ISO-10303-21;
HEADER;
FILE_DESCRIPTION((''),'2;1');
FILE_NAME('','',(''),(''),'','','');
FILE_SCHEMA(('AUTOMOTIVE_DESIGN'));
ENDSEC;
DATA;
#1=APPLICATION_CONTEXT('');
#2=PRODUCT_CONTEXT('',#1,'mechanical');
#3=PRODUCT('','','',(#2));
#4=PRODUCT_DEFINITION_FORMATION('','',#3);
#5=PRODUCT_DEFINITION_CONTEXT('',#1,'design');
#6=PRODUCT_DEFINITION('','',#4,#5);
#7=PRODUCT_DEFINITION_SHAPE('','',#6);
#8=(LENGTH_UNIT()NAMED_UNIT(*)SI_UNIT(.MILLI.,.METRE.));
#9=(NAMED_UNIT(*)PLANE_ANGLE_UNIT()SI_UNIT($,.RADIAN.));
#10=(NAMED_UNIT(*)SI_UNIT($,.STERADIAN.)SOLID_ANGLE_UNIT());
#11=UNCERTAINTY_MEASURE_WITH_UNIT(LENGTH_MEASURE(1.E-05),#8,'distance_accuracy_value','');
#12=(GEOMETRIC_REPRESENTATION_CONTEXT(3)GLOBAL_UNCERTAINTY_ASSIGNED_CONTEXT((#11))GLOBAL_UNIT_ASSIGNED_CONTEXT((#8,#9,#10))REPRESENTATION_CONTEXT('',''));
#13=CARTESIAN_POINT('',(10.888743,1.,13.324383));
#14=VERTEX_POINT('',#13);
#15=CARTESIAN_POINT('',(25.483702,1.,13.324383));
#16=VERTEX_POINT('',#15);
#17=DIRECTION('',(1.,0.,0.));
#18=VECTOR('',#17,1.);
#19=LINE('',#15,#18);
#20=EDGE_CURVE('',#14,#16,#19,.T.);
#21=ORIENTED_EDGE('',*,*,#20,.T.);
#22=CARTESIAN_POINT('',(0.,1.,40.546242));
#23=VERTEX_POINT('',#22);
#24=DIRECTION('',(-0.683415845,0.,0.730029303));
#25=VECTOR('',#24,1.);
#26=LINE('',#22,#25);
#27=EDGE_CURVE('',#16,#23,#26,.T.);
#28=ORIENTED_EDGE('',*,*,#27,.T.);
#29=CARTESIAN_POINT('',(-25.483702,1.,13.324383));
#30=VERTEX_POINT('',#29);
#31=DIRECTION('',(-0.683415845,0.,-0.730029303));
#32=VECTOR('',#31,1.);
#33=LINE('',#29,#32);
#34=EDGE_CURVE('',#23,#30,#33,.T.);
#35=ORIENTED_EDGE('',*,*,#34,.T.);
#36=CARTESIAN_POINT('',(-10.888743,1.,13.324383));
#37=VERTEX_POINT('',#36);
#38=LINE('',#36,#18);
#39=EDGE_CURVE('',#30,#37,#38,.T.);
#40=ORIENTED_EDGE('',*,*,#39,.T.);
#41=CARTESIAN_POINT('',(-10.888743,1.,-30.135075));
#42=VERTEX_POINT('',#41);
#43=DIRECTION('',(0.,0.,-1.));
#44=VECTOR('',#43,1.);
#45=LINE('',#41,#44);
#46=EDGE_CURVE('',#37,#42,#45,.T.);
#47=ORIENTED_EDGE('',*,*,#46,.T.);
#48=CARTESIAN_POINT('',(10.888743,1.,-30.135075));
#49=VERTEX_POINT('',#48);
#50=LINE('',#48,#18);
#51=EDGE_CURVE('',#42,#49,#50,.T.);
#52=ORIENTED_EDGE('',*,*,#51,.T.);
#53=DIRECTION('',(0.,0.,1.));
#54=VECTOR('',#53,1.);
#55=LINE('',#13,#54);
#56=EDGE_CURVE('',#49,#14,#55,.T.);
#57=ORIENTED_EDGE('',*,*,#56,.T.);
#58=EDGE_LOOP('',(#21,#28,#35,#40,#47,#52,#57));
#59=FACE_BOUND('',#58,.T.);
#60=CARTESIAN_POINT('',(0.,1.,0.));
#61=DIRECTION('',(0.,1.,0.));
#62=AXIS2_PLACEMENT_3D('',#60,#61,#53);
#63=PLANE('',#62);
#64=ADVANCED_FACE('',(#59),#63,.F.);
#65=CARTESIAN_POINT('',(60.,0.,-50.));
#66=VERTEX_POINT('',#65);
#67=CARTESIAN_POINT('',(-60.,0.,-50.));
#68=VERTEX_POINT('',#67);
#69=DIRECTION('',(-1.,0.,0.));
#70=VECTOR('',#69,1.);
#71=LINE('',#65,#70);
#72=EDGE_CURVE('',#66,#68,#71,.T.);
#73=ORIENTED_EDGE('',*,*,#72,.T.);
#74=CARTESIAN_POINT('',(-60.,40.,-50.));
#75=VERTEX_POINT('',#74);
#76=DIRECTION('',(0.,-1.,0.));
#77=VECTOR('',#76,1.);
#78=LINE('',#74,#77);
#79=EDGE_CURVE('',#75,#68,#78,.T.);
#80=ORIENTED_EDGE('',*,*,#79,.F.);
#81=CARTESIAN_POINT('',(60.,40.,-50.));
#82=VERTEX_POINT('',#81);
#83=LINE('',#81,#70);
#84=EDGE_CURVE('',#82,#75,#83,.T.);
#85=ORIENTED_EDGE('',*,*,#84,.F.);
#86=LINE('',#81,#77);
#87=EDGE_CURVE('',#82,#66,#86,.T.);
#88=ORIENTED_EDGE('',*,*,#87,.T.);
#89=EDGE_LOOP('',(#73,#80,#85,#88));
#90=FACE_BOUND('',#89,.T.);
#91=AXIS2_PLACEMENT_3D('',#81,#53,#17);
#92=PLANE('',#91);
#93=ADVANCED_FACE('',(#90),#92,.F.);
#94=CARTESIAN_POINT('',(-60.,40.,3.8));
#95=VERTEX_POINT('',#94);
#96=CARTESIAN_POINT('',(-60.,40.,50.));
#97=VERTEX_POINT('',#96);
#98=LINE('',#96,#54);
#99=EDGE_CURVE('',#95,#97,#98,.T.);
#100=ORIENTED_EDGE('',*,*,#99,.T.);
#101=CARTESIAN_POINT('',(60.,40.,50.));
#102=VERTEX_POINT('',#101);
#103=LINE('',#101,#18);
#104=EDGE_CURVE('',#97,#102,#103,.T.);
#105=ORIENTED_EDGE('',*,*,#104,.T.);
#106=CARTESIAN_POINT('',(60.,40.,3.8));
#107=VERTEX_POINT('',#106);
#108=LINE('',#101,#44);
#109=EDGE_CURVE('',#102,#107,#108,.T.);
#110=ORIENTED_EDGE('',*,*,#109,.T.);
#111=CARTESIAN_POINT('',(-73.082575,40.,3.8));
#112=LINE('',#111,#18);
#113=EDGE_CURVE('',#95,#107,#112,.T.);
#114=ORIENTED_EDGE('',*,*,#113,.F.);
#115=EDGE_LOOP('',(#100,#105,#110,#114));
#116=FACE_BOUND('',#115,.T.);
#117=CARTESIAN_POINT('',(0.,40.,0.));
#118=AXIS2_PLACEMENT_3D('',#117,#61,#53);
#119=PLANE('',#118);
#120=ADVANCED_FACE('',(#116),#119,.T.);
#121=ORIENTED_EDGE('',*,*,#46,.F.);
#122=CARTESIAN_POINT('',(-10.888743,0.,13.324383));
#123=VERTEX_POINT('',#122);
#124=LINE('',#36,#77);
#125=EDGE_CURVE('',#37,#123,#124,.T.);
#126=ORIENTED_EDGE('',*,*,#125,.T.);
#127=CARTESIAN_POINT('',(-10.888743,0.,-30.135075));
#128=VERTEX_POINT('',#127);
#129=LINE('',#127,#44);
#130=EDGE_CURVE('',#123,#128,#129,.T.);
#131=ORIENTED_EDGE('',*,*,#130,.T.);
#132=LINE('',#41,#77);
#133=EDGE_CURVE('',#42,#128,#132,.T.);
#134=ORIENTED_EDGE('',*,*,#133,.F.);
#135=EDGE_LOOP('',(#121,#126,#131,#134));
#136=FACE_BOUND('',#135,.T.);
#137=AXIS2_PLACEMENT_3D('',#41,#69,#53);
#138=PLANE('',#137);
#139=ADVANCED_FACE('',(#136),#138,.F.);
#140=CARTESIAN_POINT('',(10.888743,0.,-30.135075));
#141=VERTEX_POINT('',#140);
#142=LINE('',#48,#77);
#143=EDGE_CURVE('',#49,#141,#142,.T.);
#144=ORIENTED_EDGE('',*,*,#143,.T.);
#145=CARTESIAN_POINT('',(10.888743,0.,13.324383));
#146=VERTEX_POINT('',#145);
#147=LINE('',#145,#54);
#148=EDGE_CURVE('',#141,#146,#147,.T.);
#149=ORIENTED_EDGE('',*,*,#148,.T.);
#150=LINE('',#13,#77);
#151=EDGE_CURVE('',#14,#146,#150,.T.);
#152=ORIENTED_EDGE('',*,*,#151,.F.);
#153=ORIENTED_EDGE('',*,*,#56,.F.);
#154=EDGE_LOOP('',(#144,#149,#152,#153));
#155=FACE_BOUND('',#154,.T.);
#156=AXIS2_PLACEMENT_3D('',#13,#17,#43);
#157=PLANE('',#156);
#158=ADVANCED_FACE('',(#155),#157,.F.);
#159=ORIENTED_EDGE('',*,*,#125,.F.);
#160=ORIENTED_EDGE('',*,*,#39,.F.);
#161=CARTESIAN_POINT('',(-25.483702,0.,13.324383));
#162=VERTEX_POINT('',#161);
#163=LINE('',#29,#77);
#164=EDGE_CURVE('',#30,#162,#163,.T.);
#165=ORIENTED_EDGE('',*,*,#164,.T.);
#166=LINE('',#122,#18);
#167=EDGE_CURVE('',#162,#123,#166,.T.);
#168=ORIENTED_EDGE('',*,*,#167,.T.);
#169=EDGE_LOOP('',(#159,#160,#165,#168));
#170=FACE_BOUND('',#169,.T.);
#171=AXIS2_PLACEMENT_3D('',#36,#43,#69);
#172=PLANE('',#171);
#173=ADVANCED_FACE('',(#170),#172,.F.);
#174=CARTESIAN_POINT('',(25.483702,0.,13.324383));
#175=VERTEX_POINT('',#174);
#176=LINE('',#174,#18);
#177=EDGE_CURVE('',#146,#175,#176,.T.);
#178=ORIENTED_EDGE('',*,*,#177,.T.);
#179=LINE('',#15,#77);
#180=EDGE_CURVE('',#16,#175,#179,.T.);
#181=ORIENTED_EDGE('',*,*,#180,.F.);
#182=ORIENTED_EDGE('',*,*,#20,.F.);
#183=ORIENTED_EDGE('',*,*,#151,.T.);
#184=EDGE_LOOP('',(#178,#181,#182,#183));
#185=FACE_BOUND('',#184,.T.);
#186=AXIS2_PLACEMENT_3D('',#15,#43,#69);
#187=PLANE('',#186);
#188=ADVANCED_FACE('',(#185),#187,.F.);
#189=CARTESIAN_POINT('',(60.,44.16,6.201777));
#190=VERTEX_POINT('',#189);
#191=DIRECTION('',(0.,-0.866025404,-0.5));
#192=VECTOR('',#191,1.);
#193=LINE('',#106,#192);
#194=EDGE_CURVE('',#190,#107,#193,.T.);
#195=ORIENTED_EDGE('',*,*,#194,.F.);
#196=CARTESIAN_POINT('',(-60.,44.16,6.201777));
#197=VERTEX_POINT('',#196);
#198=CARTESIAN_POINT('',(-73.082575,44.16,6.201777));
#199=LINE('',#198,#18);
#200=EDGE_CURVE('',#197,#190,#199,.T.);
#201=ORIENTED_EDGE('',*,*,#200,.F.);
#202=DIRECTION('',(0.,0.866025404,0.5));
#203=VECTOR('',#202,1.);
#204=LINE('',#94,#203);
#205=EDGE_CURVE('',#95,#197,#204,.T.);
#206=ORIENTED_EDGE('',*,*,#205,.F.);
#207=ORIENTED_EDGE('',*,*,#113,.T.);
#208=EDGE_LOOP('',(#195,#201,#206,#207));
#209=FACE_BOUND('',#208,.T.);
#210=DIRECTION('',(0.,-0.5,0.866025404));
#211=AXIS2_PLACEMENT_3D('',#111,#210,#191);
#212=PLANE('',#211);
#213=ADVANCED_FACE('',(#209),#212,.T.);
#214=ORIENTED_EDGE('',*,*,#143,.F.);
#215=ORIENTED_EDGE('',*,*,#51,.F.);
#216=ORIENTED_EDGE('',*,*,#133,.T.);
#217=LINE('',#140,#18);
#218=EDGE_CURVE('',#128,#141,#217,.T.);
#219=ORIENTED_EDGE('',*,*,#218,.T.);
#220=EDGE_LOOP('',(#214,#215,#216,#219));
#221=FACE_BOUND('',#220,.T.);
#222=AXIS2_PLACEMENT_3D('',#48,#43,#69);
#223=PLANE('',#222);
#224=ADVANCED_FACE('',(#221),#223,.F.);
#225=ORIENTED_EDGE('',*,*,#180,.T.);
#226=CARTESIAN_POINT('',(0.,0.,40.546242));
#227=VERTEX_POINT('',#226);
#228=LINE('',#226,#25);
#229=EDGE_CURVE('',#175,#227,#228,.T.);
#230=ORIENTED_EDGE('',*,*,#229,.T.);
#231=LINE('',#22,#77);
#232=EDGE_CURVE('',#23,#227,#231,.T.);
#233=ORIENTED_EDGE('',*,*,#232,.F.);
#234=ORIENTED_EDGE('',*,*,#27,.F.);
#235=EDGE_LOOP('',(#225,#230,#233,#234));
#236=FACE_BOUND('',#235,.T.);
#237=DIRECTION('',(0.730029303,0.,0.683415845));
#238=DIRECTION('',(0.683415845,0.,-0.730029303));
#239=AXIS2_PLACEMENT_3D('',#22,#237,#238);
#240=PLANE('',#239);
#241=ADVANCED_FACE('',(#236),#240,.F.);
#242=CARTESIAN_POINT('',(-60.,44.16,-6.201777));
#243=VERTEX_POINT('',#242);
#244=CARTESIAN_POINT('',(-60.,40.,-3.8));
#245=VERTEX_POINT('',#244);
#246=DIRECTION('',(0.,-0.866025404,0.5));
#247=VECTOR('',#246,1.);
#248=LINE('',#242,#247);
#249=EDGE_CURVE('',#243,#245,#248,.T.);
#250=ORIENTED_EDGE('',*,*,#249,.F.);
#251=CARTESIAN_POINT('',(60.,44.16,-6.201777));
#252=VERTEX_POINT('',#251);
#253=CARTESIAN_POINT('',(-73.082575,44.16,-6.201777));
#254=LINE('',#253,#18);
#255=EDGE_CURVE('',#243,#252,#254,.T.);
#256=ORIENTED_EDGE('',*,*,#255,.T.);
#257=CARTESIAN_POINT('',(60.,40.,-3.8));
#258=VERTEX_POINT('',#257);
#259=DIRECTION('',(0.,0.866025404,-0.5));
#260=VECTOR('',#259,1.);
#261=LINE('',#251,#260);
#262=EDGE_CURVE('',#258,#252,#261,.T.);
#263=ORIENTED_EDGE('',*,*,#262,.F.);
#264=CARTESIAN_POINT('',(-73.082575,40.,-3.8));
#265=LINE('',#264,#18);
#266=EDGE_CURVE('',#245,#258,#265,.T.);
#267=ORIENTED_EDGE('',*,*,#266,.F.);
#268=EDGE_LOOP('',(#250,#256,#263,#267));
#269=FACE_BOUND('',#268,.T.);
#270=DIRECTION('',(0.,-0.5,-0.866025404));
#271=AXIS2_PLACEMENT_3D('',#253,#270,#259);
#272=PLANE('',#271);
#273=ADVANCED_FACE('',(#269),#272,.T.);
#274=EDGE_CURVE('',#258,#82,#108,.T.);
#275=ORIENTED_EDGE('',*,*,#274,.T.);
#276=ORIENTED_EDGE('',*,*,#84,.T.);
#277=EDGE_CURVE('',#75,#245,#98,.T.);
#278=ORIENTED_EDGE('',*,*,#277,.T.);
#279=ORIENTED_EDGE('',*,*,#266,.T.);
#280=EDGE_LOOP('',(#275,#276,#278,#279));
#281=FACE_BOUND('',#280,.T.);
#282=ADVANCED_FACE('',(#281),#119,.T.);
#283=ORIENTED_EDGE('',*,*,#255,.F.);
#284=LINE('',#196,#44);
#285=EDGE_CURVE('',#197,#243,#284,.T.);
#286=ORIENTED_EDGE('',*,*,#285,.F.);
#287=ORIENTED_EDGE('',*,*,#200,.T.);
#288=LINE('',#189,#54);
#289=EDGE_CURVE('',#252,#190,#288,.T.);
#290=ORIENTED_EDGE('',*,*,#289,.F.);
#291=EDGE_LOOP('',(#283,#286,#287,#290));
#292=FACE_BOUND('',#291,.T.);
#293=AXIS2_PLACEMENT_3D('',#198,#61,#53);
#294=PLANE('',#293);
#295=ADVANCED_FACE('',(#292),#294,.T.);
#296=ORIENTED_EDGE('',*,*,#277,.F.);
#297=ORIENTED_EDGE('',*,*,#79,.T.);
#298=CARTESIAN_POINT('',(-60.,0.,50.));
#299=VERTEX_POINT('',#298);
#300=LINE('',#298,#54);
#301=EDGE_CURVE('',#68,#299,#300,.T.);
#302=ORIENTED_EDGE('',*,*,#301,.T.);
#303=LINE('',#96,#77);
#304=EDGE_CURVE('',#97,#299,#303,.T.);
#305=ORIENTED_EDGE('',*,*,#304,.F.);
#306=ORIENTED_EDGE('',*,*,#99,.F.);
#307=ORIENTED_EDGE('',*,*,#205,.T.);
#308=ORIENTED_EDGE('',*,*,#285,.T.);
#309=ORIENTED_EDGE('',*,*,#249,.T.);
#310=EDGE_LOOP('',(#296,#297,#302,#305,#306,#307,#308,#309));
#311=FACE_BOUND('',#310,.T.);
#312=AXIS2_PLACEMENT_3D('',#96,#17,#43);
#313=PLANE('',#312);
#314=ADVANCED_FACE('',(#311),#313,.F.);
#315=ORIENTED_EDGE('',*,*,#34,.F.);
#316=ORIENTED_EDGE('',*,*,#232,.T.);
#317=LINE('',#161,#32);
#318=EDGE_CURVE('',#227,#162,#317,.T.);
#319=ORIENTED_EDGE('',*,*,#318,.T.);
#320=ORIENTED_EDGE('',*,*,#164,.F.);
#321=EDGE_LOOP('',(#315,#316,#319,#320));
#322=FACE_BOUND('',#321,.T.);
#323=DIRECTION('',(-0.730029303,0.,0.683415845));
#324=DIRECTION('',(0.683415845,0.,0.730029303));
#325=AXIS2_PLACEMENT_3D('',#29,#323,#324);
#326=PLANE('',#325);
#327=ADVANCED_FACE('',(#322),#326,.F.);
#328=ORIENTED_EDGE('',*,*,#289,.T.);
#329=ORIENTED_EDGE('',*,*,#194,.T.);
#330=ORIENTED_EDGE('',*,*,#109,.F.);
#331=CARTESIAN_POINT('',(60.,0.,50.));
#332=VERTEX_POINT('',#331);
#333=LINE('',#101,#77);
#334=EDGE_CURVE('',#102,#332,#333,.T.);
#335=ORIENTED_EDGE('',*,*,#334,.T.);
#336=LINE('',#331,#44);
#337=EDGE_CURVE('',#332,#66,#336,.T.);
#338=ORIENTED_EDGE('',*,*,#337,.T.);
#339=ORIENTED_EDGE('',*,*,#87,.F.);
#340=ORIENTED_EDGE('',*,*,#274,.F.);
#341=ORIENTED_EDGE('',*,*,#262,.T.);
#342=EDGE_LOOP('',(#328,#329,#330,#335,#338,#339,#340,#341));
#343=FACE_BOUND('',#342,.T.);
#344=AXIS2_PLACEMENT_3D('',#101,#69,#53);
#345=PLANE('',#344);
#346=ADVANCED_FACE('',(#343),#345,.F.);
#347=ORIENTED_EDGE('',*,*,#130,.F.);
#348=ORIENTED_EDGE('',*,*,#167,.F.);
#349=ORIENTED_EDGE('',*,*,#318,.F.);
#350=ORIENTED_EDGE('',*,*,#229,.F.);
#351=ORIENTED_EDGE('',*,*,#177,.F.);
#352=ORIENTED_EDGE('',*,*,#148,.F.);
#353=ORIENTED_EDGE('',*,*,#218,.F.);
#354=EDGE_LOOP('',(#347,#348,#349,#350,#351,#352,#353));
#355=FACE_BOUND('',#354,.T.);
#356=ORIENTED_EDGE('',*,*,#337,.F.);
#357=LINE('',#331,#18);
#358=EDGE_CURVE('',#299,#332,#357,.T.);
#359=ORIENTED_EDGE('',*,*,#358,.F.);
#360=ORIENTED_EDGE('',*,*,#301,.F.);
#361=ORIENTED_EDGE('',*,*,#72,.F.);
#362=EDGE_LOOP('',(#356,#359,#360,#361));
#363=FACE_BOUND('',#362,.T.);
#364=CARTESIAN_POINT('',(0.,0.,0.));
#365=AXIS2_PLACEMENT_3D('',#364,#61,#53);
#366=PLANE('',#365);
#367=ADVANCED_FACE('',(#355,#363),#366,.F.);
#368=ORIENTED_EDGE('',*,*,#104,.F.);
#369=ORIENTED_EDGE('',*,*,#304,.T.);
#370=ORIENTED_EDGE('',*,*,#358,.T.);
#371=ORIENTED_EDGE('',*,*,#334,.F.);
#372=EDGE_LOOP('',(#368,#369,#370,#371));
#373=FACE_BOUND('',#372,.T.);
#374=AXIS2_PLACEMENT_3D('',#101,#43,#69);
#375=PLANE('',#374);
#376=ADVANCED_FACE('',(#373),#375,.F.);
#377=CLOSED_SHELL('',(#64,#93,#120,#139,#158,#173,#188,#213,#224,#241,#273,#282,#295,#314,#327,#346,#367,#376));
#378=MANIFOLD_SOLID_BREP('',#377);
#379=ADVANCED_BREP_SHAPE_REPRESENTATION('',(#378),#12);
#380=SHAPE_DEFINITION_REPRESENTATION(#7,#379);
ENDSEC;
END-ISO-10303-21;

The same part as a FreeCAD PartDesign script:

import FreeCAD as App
import Part
import Sketcher
Q = App.Units.Quantity

doc = App.newDocument("Part")
body = doc.addObject("PartDesign::Body", "Body")

# Sketch on XZ plane
sketch1 = body.newObject("Sketcher::SketchObject", "Sketch")
sketch1.AttachmentSupport = (doc.getObject("XZ_Plane"), [""])
sketch1.MapMode = "FlatFace"
sketch1.addGeometry(Part.LineSegment(App.Vector(-60, -50, 0), App.Vector(-60, 50, 0)), False)
sketch1.addGeometry(Part.LineSegment(App.Vector(-60, 50, 0), App.Vector(60, 50, 0)), False)
sketch1.addGeometry(Part.LineSegment(App.Vector(60, 50, 0), App.Vector(60, -50, 0)), False)
sketch1.addGeometry(Part.LineSegment(App.Vector(60, -50, 0), App.Vector(-60, -50, 0)), False)
sketch1.addConstraint(Sketcher.Constraint("Coincident", 0, 2, 1, 1))
sketch1.addConstraint(Sketcher.Constraint("Coincident", 1, 2, 2, 1))
sketch1.addConstraint(Sketcher.Constraint("Coincident", 2, 2, 3, 1))
sketch1.addConstraint(Sketcher.Constraint("Coincident", 3, 2, 0, 1))
sketch1.addConstraint(Sketcher.Constraint("Vertical", 0))
sketch1.addConstraint(Sketcher.Constraint("Horizontal", 1))
sketch1.addConstraint(Sketcher.Constraint("Vertical", 2))
sketch1.addConstraint(Sketcher.Constraint("Horizontal", 3))
sketch1.addConstraint(Sketcher.Constraint("Symmetric", 0, 2, 2, 2, -1, 1))
sketch1.addConstraint(Sketcher.Constraint("DistanceX", 1, 1, 1, 2, 120.0))
sketch1.addConstraint(Sketcher.Constraint("DistanceY", 0, 1, 0, 2, 100.0))
pad1 = body.newObject("PartDesign::Pad", "Pad")
pad1.Profile = sketch1
pad1.Length = 40
pad1.Reversed = True

# Sketch on YZ plane
sketch2 = body.newObject("Sketcher::SketchObject", "Sketch001")
sketch2.AttachmentSupport = (doc.getObject("YZ_Plane"), [""])
sketch2.MapMode = "FlatFace"
sketch2.AttachmentOffset = App.Placement(App.Vector(0, 0, 60), App.Rotation())
sketch2.addGeometry(Part.LineSegment(App.Vector(44.2, 6.2, 0), App.Vector(40, 3.8, 0)), False)
sketch2.addGeometry(Part.LineSegment(App.Vector(40, 3.8, 0), App.Vector(40, -3.8, 0)), False)
sketch2.addGeometry(Part.LineSegment(App.Vector(40, -3.8, 0), App.Vector(44.2, -6.2, 0)), False)
sketch2.addGeometry(Part.LineSegment(App.Vector(44.2, -6.2, 0), App.Vector(44.2, 6.2, 0)), False)
sketch2.addConstraint(Sketcher.Constraint("Coincident", 0, 2, 1, 1))
sketch2.addConstraint(Sketcher.Constraint("Coincident", 1, 2, 2, 1))
sketch2.addConstraint(Sketcher.Constraint("Coincident", 2, 2, 3, 1))
sketch2.addConstraint(Sketcher.Constraint("Coincident", 3, 2, 0, 1))
sketch2.addConstraint(Sketcher.Constraint("Vertical", 1))
sketch2.addConstraint(Sketcher.Constraint("Vertical", 3))
sketch2.addConstraint(Sketcher.Constraint("Equal", 0, 2))
sketch2.addConstraint(Sketcher.Constraint("Angle", 0, Q("-150 deg")))
sketch2.addConstraint(Sketcher.Constraint("DistanceY", 1, 2, 1, 1, 7.6))
sketch2.addConstraint(Sketcher.Constraint("DistanceX", -1, 1, 0, 2, 40.0))
sketch2.addConstraint(Sketcher.Constraint("DistanceY", -1, 1, 0, 2, 3.8))
sketch2.addConstraint(Sketcher.Constraint("DistanceX", -1, 1, 2, 2, 44.16))
pad2 = body.newObject("PartDesign::Pad", "Pad001")
pad2.Profile = sketch2
pad2.Length = 120
pad2.Reversed = True

# Sketch on XZ plane
sketch3 = body.newObject("Sketcher::SketchObject", "Sketch002")
sketch3.AttachmentSupport = (doc.getObject("XZ_Plane"), [""])
sketch3.MapMode = "FlatFace"
sketch3.addGeometry(Part.LineSegment(App.Vector(-11, 13, 0), App.Vector(-11, -30, 0)), False)
sketch3.addGeometry(Part.LineSegment(App.Vector(-11, -30, 0), App.Vector(11, -30, 0)), False)
sketch3.addGeometry(Part.LineSegment(App.Vector(11, -30, 0), App.Vector(11, 13, 0)), False)
sketch3.addGeometry(Part.LineSegment(App.Vector(11, 13, 0), App.Vector(25, 13, 0)), False)
sketch3.addGeometry(Part.LineSegment(App.Vector(25, 13, 0), App.Vector(0, 41, 0)), False)
sketch3.addGeometry(Part.LineSegment(App.Vector(0, 41, 0), App.Vector(-25, 13, 0)), False)
sketch3.addGeometry(Part.LineSegment(App.Vector(-25, 13, 0), App.Vector(-11, 13, 0)), False)
sketch3.addConstraint(Sketcher.Constraint("Coincident", 0, 2, 1, 1))
sketch3.addConstraint(Sketcher.Constraint("Coincident", 1, 2, 2, 1))
sketch3.addConstraint(Sketcher.Constraint("Coincident", 2, 2, 3, 1))
sketch3.addConstraint(Sketcher.Constraint("Coincident", 3, 2, 4, 1))
sketch3.addConstraint(Sketcher.Constraint("Coincident", 4, 2, 5, 1))
sketch3.addConstraint(Sketcher.Constraint("Coincident", 5, 2, 6, 1))
sketch3.addConstraint(Sketcher.Constraint("Coincident", 6, 2, 0, 1))
sketch3.addConstraint(Sketcher.Constraint("Vertical", 0))
sketch3.addConstraint(Sketcher.Constraint("Horizontal", 1))
sketch3.addConstraint(Sketcher.Constraint("Vertical", 2))
sketch3.addConstraint(Sketcher.Constraint("Horizontal", 3))
sketch3.addConstraint(Sketcher.Constraint("Horizontal", 6))
sketch3.addConstraint(Sketcher.Constraint("Symmetric", 3, 2, 5, 2, -2))
sketch3.addConstraint(Sketcher.Constraint("PointOnObject", 4, 2, -2))
sketch3.addConstraint(Sketcher.Constraint("Equal", 3, 6))
sketch3.addConstraint(Sketcher.Constraint("DistanceX", 3, 1, 3, 2, 14.594959))
sketch3.addConstraint(Sketcher.Constraint("Distance", 4, 37.28872))
sketch3.addConstraint(Sketcher.Constraint("DistanceX", 1, 1, 1, 2, 21.777487))
sketch3.addConstraint(Sketcher.Constraint("DistanceY", 0, 2, 0, 1, 43.459458))
sketch3.addConstraint(Sketcher.Constraint("DistanceY", -1, 1, 4, 2, 40.546242))
pocket1 = body.newObject("PartDesign::Pocket", "Pocket")
pocket1.Profile = sketch3
pocket1.Length = 1

doc.recompute()
